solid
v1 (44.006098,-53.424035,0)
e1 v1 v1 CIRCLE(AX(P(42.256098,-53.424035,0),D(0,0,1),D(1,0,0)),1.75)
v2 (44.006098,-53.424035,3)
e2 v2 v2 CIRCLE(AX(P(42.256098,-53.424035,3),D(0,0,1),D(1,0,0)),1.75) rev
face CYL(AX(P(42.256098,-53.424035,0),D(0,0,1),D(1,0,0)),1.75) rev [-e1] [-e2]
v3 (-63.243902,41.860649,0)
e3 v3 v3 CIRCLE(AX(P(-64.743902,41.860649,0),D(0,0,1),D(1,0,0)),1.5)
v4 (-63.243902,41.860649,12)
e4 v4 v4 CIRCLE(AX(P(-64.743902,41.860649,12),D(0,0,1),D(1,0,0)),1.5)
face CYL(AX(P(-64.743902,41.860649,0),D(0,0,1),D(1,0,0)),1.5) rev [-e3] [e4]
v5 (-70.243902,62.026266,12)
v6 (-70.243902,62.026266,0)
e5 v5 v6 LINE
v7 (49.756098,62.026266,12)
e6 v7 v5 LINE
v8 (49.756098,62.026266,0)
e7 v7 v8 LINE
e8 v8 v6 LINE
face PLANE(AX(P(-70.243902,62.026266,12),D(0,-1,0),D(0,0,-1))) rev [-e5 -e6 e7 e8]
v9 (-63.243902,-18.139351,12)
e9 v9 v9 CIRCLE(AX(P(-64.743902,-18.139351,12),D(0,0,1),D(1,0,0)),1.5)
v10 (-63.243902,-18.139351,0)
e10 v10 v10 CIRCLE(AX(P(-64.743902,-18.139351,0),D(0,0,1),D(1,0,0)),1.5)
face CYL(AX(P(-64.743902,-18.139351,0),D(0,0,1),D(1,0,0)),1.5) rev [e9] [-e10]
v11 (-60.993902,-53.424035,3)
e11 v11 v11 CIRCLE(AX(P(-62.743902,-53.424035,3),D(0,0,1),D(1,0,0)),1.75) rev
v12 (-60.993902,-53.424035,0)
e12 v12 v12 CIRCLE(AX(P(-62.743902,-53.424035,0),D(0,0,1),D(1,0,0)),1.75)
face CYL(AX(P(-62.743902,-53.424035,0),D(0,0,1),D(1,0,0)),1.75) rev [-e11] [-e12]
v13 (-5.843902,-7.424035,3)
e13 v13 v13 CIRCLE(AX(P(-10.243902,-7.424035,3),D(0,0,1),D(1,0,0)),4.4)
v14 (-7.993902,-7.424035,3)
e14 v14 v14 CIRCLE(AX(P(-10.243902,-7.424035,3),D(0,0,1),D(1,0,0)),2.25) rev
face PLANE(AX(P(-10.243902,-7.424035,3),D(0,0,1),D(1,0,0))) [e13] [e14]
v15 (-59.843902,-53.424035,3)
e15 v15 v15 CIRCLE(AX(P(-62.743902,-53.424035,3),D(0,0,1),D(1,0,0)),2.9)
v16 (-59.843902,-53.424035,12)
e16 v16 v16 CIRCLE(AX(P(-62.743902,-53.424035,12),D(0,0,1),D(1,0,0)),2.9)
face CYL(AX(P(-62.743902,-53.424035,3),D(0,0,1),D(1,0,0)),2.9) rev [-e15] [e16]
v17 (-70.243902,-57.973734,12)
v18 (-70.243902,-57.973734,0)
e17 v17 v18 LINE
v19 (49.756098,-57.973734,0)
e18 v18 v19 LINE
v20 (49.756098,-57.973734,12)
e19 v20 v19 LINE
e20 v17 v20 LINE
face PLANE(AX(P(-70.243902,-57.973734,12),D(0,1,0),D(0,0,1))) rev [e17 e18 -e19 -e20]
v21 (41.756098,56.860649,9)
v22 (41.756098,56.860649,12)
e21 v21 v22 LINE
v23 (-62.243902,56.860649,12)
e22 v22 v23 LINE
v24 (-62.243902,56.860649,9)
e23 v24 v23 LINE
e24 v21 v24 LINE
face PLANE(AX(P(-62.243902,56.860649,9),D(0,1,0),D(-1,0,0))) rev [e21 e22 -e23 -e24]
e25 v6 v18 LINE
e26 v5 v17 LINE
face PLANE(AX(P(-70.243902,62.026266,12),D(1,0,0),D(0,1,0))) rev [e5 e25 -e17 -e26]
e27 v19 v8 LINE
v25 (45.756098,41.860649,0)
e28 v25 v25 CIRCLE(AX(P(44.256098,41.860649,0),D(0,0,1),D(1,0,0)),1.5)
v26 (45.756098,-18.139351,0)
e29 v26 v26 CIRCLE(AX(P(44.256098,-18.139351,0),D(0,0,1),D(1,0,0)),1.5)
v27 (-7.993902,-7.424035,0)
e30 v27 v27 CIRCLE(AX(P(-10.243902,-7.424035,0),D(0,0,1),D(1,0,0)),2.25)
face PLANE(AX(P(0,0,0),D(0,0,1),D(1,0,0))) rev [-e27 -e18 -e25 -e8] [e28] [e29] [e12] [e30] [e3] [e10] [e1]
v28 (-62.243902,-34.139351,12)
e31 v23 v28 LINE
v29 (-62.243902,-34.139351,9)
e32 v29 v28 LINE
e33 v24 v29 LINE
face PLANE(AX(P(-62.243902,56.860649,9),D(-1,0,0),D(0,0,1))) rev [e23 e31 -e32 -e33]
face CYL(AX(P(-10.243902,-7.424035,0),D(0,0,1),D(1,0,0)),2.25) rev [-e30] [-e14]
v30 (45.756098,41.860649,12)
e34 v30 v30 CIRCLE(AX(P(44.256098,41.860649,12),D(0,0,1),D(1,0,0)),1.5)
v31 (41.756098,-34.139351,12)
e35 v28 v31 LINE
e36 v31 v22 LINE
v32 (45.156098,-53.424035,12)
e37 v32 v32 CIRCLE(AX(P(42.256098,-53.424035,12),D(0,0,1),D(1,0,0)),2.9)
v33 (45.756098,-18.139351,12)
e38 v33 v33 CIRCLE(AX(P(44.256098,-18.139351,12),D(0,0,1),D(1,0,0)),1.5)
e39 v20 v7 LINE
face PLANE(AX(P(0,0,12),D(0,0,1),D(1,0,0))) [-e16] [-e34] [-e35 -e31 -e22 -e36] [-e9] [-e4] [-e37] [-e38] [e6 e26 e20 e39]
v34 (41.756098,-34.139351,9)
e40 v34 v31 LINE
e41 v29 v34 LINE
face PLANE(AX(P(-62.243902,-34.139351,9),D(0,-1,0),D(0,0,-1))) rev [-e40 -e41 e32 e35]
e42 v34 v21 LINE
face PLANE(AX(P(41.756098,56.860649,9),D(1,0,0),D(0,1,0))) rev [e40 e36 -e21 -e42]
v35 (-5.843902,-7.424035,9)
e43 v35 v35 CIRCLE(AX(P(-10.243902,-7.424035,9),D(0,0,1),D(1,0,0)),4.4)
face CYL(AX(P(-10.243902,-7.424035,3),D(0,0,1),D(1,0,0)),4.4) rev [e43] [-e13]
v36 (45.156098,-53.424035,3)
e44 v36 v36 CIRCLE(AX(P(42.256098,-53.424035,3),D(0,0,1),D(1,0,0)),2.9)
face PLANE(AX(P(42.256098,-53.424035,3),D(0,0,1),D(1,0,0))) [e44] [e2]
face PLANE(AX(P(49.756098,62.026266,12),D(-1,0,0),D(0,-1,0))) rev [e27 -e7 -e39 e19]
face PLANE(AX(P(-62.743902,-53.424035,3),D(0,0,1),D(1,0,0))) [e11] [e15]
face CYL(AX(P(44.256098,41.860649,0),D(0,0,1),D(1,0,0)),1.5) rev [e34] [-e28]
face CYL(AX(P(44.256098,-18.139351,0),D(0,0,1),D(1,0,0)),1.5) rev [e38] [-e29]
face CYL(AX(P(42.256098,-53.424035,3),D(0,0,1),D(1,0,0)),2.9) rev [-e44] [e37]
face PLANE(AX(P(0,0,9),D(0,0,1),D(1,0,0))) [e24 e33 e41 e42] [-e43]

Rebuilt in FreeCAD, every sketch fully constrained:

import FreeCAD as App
import Part
import Sketcher

V = App.Vector
Q = App.Units.Quantity

doc = App.newDocument("Part")
body = doc.addObject("PartDesign::Body", "Body")

sketch1 = doc.addObject("Sketcher::SketchObject", "Sketch")
body.addObject(sketch1)
sketch1.AttachmentSupport = (doc.XY_Plane, [""])
sketch1.MapMode = "FlatFace"
sketch1.addGeometry(Part.LineSegment(V(-70, 62, 0), V(-70, -58, 0)), False)
sketch1.addGeometry(Part.LineSegment(V(-70, -58, 0), V(50, -58, 0)), False)
sketch1.addGeometry(Part.LineSegment(V(50, -58, 0), V(50, 62, 0)), False)
sketch1.addGeometry(Part.LineSegment(V(50, 62, 0), V(-70, 62, 0)), False)
sketch1.addConstraint(Sketcher.Constraint("Coincident", 0, 2, 1, 1))
sketch1.addConstraint(Sketcher.Constraint("Coincident", 1, 2, 2, 1))
sketch1.addConstraint(Sketcher.Constraint("Coincident", 2, 2, 3, 1))
sketch1.addConstraint(Sketcher.Constraint("Coincident", 3, 2, 0, 1))
sketch1.addConstraint(Sketcher.Constraint("Vertical", 0))
sketch1.addConstraint(Sketcher.Constraint("Horizontal", 1))
sketch1.addConstraint(Sketcher.Constraint("Vertical", 2))
sketch1.addConstraint(Sketcher.Constraint("Horizontal", 3))
sketch1.addConstraint(Sketcher.Constraint("Equal", 3, 0))
sketch1.addConstraint(Sketcher.Constraint("DistanceX", 1, 1, 1, 2, Q("120 mm")))
sketch1.addConstraint(Sketcher.Constraint("DistanceX", 0, 2, -1, 1, Q("70.243902 mm")))
sketch1.addConstraint(Sketcher.Constraint("DistanceY", 0, 2, -1, 1, Q("57.973734 mm")))
pad1 = doc.addObject("PartDesign::Pad", "Pad")
body.addObject(pad1)
pad1.Profile = sketch1
pad1.Length = 12

sketch2 = doc.addObject("Sketcher::SketchObject", "Sketch001")
body.addObject(sketch2)
sketch2.AttachmentSupport = (doc.XY_Plane, [""])
sketch2.MapMode = "FlatFace"
sketch2.AttachmentOffset = App.Placement(V(0, 0, 12), App.Rotation())
sketch2.addGeometry(Part.LineSegment(V(-62, 57, 0), V(-62, -34, 0)), False)
sketch2.addGeometry(Part.LineSegment(V(-62, -34, 0), V(42, -34, 0)), False)
sketch2.addGeometry(Part.LineSegment(V(42, -34, 0), V(42, 57, 0)), False)
sketch2.addGeometry(Part.LineSegment(V(42, 57, 0), V(-62, 57, 0)), False)
sketch2.addConstraint(Sketcher.Constraint("Coincident", 0, 2, 1, 1))
sketch2.addConstraint(Sketcher.Constraint("Coincident", 1, 2, 2, 1))
sketch2.addConstraint(Sketcher.Constraint("Coincident", 2, 2, 3, 1))
sketch2.addConstraint(Sketcher.Constraint("Coincident", 3, 2, 0, 1))
sketch2.addConstraint(Sketcher.Constraint("Vertical", 0))
sketch2.addConstraint(Sketcher.Constraint("Horizontal", 1))
sketch2.addConstraint(Sketcher.Constraint("Vertical", 2))
sketch2.addConstraint(Sketcher.Constraint("Horizontal", 3))
sketch2.addConstraint(Sketcher.Constraint("DistanceX", 1, 1, 1, 2, Q("104 mm")))
sketch2.addConstraint(Sketcher.Constraint("DistanceY", 0, 2, 0, 1, Q("91 mm")))
sketch2.addConstraint(Sketcher.Constraint("DistanceY", 0, 2, -1, 1, Q("34.139351 mm")))
sketch2.addConstraint(Sketcher.Constraint("DistanceX", 0, 2, -1, 1, Q("62.243902 mm")))
pocket1 = doc.addObject("PartDesign::Pocket", "Pocket")
body.addObject(pocket1)
pocket1.Profile = sketch2
pocket1.Length = 3

sketch3 = doc.addObject("Sketcher::SketchObject", "Sketch002")
body.addObject(sketch3)
sketch3.AttachmentSupport = (doc.XY_Plane, [""])
sketch3.MapMode = "FlatFace"
sketch3.AttachmentOffset = App.Placement(V(0, 0, 12), App.Rotation())
sketch3.addGeometry(Part.Circle(V(-10.2, -7.4, 0), V(0, 0, 1), 2.2), False)
sketch3.addConstraint(Sketcher.Constraint("Diameter", 0, Q("4.5 mm")))
sketch3.addConstraint(Sketcher.Constraint("DistanceX", 0, 3, -1, 1, Q("10.243902 mm")))
sketch3.addConstraint(Sketcher.Constraint("DistanceY", 0, 3, -1, 1, Q("7.424035 mm")))
pocket2 = doc.addObject("PartDesign::Pocket", "Pocket001")
body.addObject(pocket2)
pocket2.Profile = sketch3
pocket2.Length = 12

sketch4 = doc.addObject("Sketcher::SketchObject", "Sketch003")
body.addObject(sketch4)
sketch4.AttachmentSupport = (doc.XY_Plane, [""])
sketch4.MapMode = "FlatFace"
sketch4.AttachmentOffset = App.Placement(V(0, 0, 12), App.Rotation())
sketch4.addGeometry(Part.Circle(V(-62.7, -53.4, 0), V(0, 0, 1), 1.8), False)
sketch4.addGeometry(Part.Circle(V(42.3, -53.4, 0), V(0, 0, 1), 1.8), False)
sketch4.addConstraint(Sketcher.Constraint("Equal", 0, 1))
sketch4.addConstraint(Sketcher.Constraint("Horizontal", 0, 3, 1, 3))
sketch4.addConstraint(Sketcher.Constraint("Diameter", 0, Q("3.5 mm")))
sketch4.addConstraint(Sketcher.Constraint("DistanceX", 0, 3, 1, 3, Q("105 mm")))
sketch4.addConstraint(Sketcher.Constraint("DistanceX", 0, 3, -1, 1, Q("62.743902 mm")))
sketch4.addConstraint(Sketcher.Constraint("DistanceY", 0, 3, -1, 1, Q("53.424035 mm")))
pocket3 = doc.addObject("PartDesign::Pocket", "Pocket002")
body.addObject(pocket3)
pocket3.Profile = sketch4
pocket3.Length = 12

sketch5 = doc.addObject("Sketcher::SketchObject", "Sketch004")
body.addObject(sketch5)
sketch5.AttachmentSupport = (doc.XY_Plane, [""])
sketch5.MapMode = "FlatFace"
sketch5.AttachmentOffset = App.Placement(V(0, 0, 12), App.Rotation())
sketch5.addGeometry(Part.Circle(V(-62.7, -53.4, 0), V(0, 0, 1), 2.9), False)
sketch5.addGeometry(Part.Circle(V(42.3, -53.4, 0), V(0, 0, 1), 2.9), False)
sketch5.addGeometry(Part.Circle(V(-10.2, -7.4, 0), V(0, 0, 1), 4.4), False)
sketch5.addConstraint(Sketcher.Constraint("Equal", 0, 1))
sketch5.addConstraint(Sketcher.Constraint("Horizontal", 0, 3, 1, 3))
sketch5.addConstraint(Sketcher.Constraint("Diameter", 0, Q("5.8 mm")))
sketch5.addConstraint(Sketcher.Constraint("Diameter", 2, Q("8.8 mm")))
sketch5.addConstraint(Sketcher.Constraint("DistanceX", 0, 3, 1, 3, Q("105 mm")))
sketch5.addConstraint(Sketcher.Constraint("DistanceY", 0, 3, 2, 3, Q("46 mm")))
sketch5.addConstraint(Sketcher.Constraint("DistanceX", 0, 3, 2, 3, Q("52.5 mm")))
sketch5.addConstraint(Sketcher.Constraint("DistanceX", 0, 3, -1, 1, Q("62.743902 mm")))
sketch5.addConstraint(Sketcher.Constraint("DistanceY", 0, 3, -1, 1, Q("53.424035 mm")))
pocket4 = doc.addObject("PartDesign::Pocket", "Pocket003")
body.addObject(pocket4)
pocket4.Profile = sketch5
pocket4.Length = 9

sketch6 = doc.addObject("Sketcher::SketchObject", "Sketch005")
body.addObject(sketch6)
sketch6.AttachmentSupport = (doc.XY_Plane, [""])
sketch6.MapMode = "FlatFace"
sketch6.AttachmentOffset = App.Placement(V(0, 0, 12), App.Rotation())
sketch6.addGeometry(Part.Circle(V(-64.7, -18.1, 0), V(0, 0, 1), 1.5), False)
sketch6.addGeometry(Part.Circle(V(-64.7, 41.9, 0), V(0, 0, 1), 1.5), False)
sketch6.addGeometry(Part.Circle(V(44.3, 41.9, 0), V(0, 0, 1), 1.5), False)
sketch6.addGeometry(Part.Circle(V(44.3, -18.1, 0), V(0, 0, 1), 1.5), False)
sketch6.addConstraint(Sketcher.Constraint("Equal", 0, 1))
sketch6.addConstraint(Sketcher.Constraint("Equal", 1, 2))
sketch6.addConstraint(Sketcher.Constraint("Equal", 2, 3))
sketch6.addConstraint(Sketcher.Constraint("Horizontal", 1, 3, 2, 3))
sketch6.addConstraint(Sketcher.Constraint("Horizontal", 0, 3, 3, 3))
sketch6.addConstraint(Sketcher.Constraint("Vertical", 0, 3, 1, 3))
sketch6.addConstraint(Sketcher.Constraint("Vertical", 2, 3, 3, 3))
sketch6.addConstraint(Sketcher.Constraint("Diameter", 0, Q("3 mm")))
sketch6.addConstraint(Sketcher.Constraint("DistanceY", 0, 3, 1, 3, Q("60 mm")))
sketch6.addConstraint(Sketcher.Constraint("DistanceX", 1, 3, 2, 3, Q("109 mm")))
sketch6.addConstraint(Sketcher.Constraint("DistanceY", 0, 3, -1, 1, Q("18.139351 mm")))
sketch6.addConstraint(Sketcher.Constraint("DistanceX", 0, 3, -1, 1, Q("64.743902 mm")))
pocket5 = doc.addObject("PartDesign::Pocket", "Pocket004")
body.addObject(pocket5)
pocket5.Profile = sketch6
pocket5.Length = 12

doc.recompute()
